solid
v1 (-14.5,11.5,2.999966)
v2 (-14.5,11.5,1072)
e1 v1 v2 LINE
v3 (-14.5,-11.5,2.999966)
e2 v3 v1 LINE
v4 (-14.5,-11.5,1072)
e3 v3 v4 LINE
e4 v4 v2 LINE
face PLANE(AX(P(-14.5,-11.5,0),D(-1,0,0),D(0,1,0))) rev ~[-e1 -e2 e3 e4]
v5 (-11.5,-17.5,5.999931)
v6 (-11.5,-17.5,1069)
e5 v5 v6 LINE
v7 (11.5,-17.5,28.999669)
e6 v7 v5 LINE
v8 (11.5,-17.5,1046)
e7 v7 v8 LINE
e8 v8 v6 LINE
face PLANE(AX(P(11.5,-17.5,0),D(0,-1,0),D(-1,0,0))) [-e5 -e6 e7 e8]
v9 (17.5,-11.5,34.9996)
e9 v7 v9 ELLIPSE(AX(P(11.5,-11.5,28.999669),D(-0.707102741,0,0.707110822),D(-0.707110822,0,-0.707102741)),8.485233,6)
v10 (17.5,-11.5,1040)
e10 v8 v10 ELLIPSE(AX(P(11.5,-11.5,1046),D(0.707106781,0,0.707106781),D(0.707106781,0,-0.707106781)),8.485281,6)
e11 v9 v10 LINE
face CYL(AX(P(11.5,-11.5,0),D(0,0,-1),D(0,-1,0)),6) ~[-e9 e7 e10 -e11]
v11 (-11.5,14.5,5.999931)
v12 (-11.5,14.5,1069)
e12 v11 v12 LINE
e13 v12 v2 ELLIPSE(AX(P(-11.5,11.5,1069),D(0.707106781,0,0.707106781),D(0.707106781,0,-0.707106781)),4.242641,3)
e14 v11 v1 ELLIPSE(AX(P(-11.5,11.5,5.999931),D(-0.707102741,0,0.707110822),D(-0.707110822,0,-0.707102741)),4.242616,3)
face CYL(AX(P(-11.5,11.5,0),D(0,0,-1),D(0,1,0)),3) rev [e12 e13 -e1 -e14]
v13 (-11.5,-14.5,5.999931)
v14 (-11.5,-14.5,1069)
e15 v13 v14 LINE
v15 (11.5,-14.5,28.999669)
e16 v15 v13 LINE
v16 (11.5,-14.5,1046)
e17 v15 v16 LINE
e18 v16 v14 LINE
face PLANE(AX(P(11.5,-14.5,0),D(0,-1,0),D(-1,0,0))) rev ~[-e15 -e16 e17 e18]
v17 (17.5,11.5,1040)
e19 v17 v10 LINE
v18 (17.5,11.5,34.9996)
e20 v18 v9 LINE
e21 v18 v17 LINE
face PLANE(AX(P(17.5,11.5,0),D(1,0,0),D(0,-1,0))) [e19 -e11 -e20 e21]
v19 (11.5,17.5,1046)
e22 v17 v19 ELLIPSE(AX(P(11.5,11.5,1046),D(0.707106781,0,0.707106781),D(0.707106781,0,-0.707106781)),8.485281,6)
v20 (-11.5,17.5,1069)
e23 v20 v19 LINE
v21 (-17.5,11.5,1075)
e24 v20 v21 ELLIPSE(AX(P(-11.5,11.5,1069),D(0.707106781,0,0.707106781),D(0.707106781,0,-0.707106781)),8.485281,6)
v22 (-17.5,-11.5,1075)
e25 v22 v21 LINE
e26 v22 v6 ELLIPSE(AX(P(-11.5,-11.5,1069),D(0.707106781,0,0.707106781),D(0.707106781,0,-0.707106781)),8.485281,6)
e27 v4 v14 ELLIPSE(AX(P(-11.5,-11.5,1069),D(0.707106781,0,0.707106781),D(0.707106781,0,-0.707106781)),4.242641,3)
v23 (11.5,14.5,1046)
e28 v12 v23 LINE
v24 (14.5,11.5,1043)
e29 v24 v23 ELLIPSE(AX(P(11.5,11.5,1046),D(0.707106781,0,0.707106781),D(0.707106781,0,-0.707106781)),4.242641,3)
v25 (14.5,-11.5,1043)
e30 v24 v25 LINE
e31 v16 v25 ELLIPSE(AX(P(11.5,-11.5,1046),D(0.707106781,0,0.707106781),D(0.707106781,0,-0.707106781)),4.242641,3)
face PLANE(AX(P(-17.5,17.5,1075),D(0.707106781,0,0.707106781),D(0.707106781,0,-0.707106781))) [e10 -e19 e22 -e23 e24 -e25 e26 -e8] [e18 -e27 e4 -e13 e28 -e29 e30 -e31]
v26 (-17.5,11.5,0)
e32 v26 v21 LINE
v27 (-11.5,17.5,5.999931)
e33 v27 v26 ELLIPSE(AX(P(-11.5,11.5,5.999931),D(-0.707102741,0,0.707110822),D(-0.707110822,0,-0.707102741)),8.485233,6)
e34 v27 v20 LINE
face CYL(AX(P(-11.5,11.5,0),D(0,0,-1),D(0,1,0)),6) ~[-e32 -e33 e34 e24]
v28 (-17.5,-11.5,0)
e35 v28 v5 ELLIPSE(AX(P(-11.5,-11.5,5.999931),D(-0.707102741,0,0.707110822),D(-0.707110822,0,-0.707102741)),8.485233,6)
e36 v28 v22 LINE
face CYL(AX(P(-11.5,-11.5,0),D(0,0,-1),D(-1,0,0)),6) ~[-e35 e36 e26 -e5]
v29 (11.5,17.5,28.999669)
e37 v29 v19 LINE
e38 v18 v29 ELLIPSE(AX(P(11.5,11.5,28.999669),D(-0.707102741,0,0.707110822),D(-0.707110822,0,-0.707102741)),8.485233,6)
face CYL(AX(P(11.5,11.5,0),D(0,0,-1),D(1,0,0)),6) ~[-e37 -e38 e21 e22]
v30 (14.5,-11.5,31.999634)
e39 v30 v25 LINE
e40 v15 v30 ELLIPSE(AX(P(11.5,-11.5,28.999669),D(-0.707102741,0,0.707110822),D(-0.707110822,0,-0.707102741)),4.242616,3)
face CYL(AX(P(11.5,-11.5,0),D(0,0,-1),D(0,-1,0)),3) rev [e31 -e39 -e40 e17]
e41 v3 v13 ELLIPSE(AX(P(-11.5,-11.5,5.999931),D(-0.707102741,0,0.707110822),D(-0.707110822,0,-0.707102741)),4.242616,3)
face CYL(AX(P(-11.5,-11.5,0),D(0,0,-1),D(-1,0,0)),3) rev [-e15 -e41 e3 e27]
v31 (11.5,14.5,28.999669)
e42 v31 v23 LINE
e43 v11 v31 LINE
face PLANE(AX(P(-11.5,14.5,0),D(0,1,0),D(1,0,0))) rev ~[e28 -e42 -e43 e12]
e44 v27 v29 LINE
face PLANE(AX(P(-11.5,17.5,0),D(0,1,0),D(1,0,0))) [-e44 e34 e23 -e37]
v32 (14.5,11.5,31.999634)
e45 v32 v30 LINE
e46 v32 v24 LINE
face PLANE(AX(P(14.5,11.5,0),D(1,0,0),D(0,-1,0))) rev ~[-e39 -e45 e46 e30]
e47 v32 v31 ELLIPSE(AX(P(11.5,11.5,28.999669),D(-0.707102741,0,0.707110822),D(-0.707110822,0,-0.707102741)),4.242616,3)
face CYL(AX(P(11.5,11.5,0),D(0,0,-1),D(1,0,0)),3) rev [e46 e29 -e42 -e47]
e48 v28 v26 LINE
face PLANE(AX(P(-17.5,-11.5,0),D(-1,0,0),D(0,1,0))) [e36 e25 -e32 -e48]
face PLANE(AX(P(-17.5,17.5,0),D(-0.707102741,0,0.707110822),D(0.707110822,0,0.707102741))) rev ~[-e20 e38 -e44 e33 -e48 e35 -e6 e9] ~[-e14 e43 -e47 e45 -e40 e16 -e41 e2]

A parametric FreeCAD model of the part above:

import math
import FreeCAD as App
import Part
import Sketcher
from FreeCAD import Vector

doc = App.newDocument("Part")
params = doc.addObject("Spreadsheet::Sheet", "Params")
for row, (alias, value) in enumerate([
    ("sketch1_radius", "6 mm"),
    ("sketch1_radius2", "3 mm"),
    ("pad1_length", "1075 mm"),
    ("sketch2_width", "35 mm"),
], start=1):
    params.set(f"A{row}", alias)
    params.set(f"B{row}", "=" + value)
    params.setAlias(f"B{row}", alias)

body = doc.addObject("PartDesign::Body", "Body")

# Sketch on XY plane
sketch1 = body.newObject("Sketcher::SketchObject", "Sketch")
sketch1.AttachmentSupport = (doc.getObject("XY_Plane"), [""])
sketch1.MapMode = "FlatFace"
sketch1.addGeometry(Part.LineSegment(Vector(11.5, 17.5, 0), Vector(-11.5, 17.5, 0)), False)
sketch1.addGeometry(Part.ArcOfCircle(Part.Circle(Vector(-11.5, 11.5, 0), Vector(0, 0, 1), 6), math.radians(90), math.radians(180)), False)
sketch1.addGeometry(Part.LineSegment(Vector(-17.5, 11.5, 0), Vector(-17.5, -11.5, 0)), False)
sketch1.addGeometry(Part.ArcOfCircle(Part.Circle(Vector(-11.5, -11.5, 0), Vector(0, 0, 1), 6), math.radians(180), math.radians(270)), False)
sketch1.addGeometry(Part.LineSegment(Vector(-11.5, -17.5, 0), Vector(11.5, -17.5, 0)), False)
sketch1.addGeometry(Part.ArcOfCircle(Part.Circle(Vector(11.5, -11.5, 0), Vector(0, 0, 1), 6), math.radians(-90), math.radians(0)), False)
sketch1.addGeometry(Part.LineSegment(Vector(17.5, -11.5, 0), Vector(17.5, 11.5, 0)), False)
sketch1.addGeometry(Part.ArcOfCircle(Part.Circle(Vector(11.5, 11.5, 0), Vector(0, 0, 1), 6), math.radians(0), math.radians(90)), False)
sketch1.addGeometry(Part.ArcOfCircle(Part.Circle(Vector(-11.5, 11.5, 0), Vector(0, 0, 1), 3), math.radians(90), math.radians(180)), False)
sketch1.addGeometry(Part.LineSegment(Vector(-11.5, 14.5, 0), Vector(11.5, 14.5, 0)), False)
sketch1.addGeometry(Part.ArcOfCircle(Part.Circle(Vector(11.5, 11.5, 0), Vector(0, 0, 1), 3), math.radians(0), math.radians(90)), False)
sketch1.addGeometry(Part.LineSegment(Vector(14.5, 11.5, 0), Vector(14.5, -11.5, 0)), False)
sketch1.addGeometry(Part.ArcOfCircle(Part.Circle(Vector(11.5, -11.5, 0), Vector(0, 0, 1), 3), math.radians(-90), math.radians(0)), False)
sketch1.addGeometry(Part.LineSegment(Vector(11.5, -14.5, 0), Vector(-11.5, -14.5, 0)), False)
sketch1.addGeometry(Part.ArcOfCircle(Part.Circle(Vector(-11.5, -11.5, 0), Vector(0, 0, 1), 3), math.radians(180), math.radians(270)), False)
sketch1.addGeometry(Part.LineSegment(Vector(-14.5, -11.5, 0), Vector(-14.5, 11.5, 0)), False)
sketch1.addConstraint(Sketcher.Constraint("Tangent", 0, 2, 1, 1))
sketch1.addConstraint(Sketcher.Constraint("Tangent", 1, 2, 2, 1))
sketch1.addConstraint(Sketcher.Constraint("Tangent", 2, 2, 3, 1))
sketch1.addConstraint(Sketcher.Constraint("Tangent", 3, 2, 4, 1))
sketch1.addConstraint(Sketcher.Constraint("Tangent", 4, 2, 5, 1))
sketch1.addConstraint(Sketcher.Constraint("Tangent", 5, 2, 6, 1))
sketch1.addConstraint(Sketcher.Constraint("Tangent", 6, 2, 7, 1))
sketch1.addConstraint(Sketcher.Constraint("Tangent", 7, 2, 0, 1))
sketch1.addConstraint(Sketcher.Constraint("Tangent", 8, 1, 9, 1))
sketch1.addConstraint(Sketcher.Constraint("Tangent", 9, 2, 10, 2))
sketch1.addConstraint(Sketcher.Constraint("Tangent", 10, 1, 11, 1))
sketch1.addConstraint(Sketcher.Constraint("Tangent", 11, 2, 12, 2))
sketch1.addConstraint(Sketcher.Constraint("Tangent", 12, 1, 13, 1))
sketch1.addConstraint(Sketcher.Constraint("Tangent", 13, 2, 14, 2))
sketch1.addConstraint(Sketcher.Constraint("Tangent", 14, 1, 15, 1))
sketch1.addConstraint(Sketcher.Constraint("Tangent", 15, 2, 8, 2))
sketch1.addConstraint(Sketcher.Constraint("Horizontal", 0))
sketch1.addConstraint(Sketcher.Constraint("Vertical", 2))
sketch1.addConstraint(Sketcher.Constraint("Horizontal", 4))
sketch1.addConstraint(Sketcher.Constraint("Vertical", 6))
sketch1.addConstraint(Sketcher.Constraint("Horizontal", 9))
sketch1.addConstraint(Sketcher.Constraint("Vertical", 11))
sketch1.addConstraint(Sketcher.Constraint("Horizontal", 13))
sketch1.addConstraint(Sketcher.Constraint("Vertical", 15))
sketch1.addConstraint(Sketcher.Constraint("Coincident", 8, 3, 1, 3))
sketch1.addConstraint(Sketcher.Constraint("Coincident", 10, 3, 7, 3))
sketch1.addConstraint(Sketcher.Constraint("Coincident", 12, 3, 5, 3))
sketch1.addConstraint(Sketcher.Constraint("Equal", 1, 3))
sketch1.addConstraint(Sketcher.Constraint("Equal", 3, 5))
sketch1.addConstraint(Sketcher.Constraint("Equal", 5, 7))
sketch1.addConstraint(Sketcher.Constraint("Equal", 12, 14))
sketch1.addConstraint(Sketcher.Constraint("Symmetric", 1, 3, 5, 3, -1, 1))
sketch1.addConstraint(Sketcher.Constraint("Equal", 13, 2))
sketch1.addConstraint(Sketcher.Constraint("Radius", 1, 6.0))
sketch1.addConstraint(Sketcher.Constraint("Radius", 8, 3.0))
sketch1.addConstraint(Sketcher.Constraint("DistanceY", -1, 1, 0, 2, 17.5))
sketch1.setExpression("Constraints[33]", "Params.sketch1_radius")
sketch1.setExpression("Constraints[34]", "Params.sketch1_radius2")
pad1 = body.newObject("PartDesign::Pad", "Pad")
pad1.Profile = sketch1
pad1.setExpression("Length", "Params.pad1_length")

# Sketch on XZ plane
sketch2 = body.newObject("Sketcher::SketchObject", "Sketch001")
sketch2.AttachmentSupport = (doc.getObject("XZ_Plane"), [""])
sketch2.MapMode = "FlatFace"
sketch2.AttachmentOffset = App.Placement(Vector(0, 0, -17.5), App.Rotation())
sketch2.addGeometry(Part.LineSegment(Vector(18, 0, 0), Vector(-18, 0, 0)), False)
sketch2.addGeometry(Part.LineSegment(Vector(-18, 0, 0), Vector(18, 35, 0)), False)
sketch2.addGeometry(Part.LineSegment(Vector(18, 35, 0), Vector(18, 0, 0)), False)
sketch2.addGeometry(Part.LineSegment(Vector(18, 1075, 0), Vector(18, 1040, 0)), False)
sketch2.addGeometry(Part.LineSegment(Vector(18, 1040, 0), Vector(-18, 1075, 0)), False)
sketch2.addGeometry(Part.LineSegment(Vector(-18, 1075, 0), Vector(18, 1075, 0)), False)
sketch2.addConstraint(Sketcher.Constraint("Coincident", 0, 2, 1, 1))
sketch2.addConstraint(Sketcher.Constraint("Coincident", 1, 2, 2, 1))
sketch2.addConstraint(Sketcher.Constraint("Coincident", 2, 2, 0, 1))
sketch2.addConstraint(Sketcher.Constraint("Coincident", 3, 2, 4, 1))
sketch2.addConstraint(Sketcher.Constraint("Coincident", 4, 2, 5, 1))
sketch2.addConstraint(Sketcher.Constraint("Coincident", 5, 2, 3, 1))
sketch2.addConstraint(Sketcher.Constraint("Horizontal", 0))
sketch2.addConstraint(Sketcher.Constraint("Vertical", 2))
sketch2.addConstraint(Sketcher.Constraint("Vertical", 3))
sketch2.addConstraint(Sketcher.Constraint("Horizontal", 5))
sketch2.addConstraint(Sketcher.Constraint("Symmetric", 0, 2, 2, 2, -1, 1))
sketch2.addConstraint(Sketcher.Constraint("Perpendicular", 1, 4))
sketch2.addConstraint(Sketcher.Constraint("Vertical", 2, 2, 3, 2))
sketch2.addConstraint(Sketcher.Constraint("Vertical", 0, 2, 4, 2))
sketch2.addConstraint(Sketcher.Constraint("Equal", 5, 3))
sketch2.addConstraint(Sketcher.Constraint("DistanceX", 0, 2, 0, 1, 35.0))
sketch2.addConstraint(Sketcher.Constraint("DistanceY", -1, 1, 3, 2, 1040.0))
sketch2.setExpression("Constraints[15]", "Params.sketch2_width")
pocket1 = body.newObject("PartDesign::Pocket", "Pocket")
pocket1.Profile = sketch2
pocket1.Type = "ThroughAll"
pocket1.Reversed = True

doc.recompute()
